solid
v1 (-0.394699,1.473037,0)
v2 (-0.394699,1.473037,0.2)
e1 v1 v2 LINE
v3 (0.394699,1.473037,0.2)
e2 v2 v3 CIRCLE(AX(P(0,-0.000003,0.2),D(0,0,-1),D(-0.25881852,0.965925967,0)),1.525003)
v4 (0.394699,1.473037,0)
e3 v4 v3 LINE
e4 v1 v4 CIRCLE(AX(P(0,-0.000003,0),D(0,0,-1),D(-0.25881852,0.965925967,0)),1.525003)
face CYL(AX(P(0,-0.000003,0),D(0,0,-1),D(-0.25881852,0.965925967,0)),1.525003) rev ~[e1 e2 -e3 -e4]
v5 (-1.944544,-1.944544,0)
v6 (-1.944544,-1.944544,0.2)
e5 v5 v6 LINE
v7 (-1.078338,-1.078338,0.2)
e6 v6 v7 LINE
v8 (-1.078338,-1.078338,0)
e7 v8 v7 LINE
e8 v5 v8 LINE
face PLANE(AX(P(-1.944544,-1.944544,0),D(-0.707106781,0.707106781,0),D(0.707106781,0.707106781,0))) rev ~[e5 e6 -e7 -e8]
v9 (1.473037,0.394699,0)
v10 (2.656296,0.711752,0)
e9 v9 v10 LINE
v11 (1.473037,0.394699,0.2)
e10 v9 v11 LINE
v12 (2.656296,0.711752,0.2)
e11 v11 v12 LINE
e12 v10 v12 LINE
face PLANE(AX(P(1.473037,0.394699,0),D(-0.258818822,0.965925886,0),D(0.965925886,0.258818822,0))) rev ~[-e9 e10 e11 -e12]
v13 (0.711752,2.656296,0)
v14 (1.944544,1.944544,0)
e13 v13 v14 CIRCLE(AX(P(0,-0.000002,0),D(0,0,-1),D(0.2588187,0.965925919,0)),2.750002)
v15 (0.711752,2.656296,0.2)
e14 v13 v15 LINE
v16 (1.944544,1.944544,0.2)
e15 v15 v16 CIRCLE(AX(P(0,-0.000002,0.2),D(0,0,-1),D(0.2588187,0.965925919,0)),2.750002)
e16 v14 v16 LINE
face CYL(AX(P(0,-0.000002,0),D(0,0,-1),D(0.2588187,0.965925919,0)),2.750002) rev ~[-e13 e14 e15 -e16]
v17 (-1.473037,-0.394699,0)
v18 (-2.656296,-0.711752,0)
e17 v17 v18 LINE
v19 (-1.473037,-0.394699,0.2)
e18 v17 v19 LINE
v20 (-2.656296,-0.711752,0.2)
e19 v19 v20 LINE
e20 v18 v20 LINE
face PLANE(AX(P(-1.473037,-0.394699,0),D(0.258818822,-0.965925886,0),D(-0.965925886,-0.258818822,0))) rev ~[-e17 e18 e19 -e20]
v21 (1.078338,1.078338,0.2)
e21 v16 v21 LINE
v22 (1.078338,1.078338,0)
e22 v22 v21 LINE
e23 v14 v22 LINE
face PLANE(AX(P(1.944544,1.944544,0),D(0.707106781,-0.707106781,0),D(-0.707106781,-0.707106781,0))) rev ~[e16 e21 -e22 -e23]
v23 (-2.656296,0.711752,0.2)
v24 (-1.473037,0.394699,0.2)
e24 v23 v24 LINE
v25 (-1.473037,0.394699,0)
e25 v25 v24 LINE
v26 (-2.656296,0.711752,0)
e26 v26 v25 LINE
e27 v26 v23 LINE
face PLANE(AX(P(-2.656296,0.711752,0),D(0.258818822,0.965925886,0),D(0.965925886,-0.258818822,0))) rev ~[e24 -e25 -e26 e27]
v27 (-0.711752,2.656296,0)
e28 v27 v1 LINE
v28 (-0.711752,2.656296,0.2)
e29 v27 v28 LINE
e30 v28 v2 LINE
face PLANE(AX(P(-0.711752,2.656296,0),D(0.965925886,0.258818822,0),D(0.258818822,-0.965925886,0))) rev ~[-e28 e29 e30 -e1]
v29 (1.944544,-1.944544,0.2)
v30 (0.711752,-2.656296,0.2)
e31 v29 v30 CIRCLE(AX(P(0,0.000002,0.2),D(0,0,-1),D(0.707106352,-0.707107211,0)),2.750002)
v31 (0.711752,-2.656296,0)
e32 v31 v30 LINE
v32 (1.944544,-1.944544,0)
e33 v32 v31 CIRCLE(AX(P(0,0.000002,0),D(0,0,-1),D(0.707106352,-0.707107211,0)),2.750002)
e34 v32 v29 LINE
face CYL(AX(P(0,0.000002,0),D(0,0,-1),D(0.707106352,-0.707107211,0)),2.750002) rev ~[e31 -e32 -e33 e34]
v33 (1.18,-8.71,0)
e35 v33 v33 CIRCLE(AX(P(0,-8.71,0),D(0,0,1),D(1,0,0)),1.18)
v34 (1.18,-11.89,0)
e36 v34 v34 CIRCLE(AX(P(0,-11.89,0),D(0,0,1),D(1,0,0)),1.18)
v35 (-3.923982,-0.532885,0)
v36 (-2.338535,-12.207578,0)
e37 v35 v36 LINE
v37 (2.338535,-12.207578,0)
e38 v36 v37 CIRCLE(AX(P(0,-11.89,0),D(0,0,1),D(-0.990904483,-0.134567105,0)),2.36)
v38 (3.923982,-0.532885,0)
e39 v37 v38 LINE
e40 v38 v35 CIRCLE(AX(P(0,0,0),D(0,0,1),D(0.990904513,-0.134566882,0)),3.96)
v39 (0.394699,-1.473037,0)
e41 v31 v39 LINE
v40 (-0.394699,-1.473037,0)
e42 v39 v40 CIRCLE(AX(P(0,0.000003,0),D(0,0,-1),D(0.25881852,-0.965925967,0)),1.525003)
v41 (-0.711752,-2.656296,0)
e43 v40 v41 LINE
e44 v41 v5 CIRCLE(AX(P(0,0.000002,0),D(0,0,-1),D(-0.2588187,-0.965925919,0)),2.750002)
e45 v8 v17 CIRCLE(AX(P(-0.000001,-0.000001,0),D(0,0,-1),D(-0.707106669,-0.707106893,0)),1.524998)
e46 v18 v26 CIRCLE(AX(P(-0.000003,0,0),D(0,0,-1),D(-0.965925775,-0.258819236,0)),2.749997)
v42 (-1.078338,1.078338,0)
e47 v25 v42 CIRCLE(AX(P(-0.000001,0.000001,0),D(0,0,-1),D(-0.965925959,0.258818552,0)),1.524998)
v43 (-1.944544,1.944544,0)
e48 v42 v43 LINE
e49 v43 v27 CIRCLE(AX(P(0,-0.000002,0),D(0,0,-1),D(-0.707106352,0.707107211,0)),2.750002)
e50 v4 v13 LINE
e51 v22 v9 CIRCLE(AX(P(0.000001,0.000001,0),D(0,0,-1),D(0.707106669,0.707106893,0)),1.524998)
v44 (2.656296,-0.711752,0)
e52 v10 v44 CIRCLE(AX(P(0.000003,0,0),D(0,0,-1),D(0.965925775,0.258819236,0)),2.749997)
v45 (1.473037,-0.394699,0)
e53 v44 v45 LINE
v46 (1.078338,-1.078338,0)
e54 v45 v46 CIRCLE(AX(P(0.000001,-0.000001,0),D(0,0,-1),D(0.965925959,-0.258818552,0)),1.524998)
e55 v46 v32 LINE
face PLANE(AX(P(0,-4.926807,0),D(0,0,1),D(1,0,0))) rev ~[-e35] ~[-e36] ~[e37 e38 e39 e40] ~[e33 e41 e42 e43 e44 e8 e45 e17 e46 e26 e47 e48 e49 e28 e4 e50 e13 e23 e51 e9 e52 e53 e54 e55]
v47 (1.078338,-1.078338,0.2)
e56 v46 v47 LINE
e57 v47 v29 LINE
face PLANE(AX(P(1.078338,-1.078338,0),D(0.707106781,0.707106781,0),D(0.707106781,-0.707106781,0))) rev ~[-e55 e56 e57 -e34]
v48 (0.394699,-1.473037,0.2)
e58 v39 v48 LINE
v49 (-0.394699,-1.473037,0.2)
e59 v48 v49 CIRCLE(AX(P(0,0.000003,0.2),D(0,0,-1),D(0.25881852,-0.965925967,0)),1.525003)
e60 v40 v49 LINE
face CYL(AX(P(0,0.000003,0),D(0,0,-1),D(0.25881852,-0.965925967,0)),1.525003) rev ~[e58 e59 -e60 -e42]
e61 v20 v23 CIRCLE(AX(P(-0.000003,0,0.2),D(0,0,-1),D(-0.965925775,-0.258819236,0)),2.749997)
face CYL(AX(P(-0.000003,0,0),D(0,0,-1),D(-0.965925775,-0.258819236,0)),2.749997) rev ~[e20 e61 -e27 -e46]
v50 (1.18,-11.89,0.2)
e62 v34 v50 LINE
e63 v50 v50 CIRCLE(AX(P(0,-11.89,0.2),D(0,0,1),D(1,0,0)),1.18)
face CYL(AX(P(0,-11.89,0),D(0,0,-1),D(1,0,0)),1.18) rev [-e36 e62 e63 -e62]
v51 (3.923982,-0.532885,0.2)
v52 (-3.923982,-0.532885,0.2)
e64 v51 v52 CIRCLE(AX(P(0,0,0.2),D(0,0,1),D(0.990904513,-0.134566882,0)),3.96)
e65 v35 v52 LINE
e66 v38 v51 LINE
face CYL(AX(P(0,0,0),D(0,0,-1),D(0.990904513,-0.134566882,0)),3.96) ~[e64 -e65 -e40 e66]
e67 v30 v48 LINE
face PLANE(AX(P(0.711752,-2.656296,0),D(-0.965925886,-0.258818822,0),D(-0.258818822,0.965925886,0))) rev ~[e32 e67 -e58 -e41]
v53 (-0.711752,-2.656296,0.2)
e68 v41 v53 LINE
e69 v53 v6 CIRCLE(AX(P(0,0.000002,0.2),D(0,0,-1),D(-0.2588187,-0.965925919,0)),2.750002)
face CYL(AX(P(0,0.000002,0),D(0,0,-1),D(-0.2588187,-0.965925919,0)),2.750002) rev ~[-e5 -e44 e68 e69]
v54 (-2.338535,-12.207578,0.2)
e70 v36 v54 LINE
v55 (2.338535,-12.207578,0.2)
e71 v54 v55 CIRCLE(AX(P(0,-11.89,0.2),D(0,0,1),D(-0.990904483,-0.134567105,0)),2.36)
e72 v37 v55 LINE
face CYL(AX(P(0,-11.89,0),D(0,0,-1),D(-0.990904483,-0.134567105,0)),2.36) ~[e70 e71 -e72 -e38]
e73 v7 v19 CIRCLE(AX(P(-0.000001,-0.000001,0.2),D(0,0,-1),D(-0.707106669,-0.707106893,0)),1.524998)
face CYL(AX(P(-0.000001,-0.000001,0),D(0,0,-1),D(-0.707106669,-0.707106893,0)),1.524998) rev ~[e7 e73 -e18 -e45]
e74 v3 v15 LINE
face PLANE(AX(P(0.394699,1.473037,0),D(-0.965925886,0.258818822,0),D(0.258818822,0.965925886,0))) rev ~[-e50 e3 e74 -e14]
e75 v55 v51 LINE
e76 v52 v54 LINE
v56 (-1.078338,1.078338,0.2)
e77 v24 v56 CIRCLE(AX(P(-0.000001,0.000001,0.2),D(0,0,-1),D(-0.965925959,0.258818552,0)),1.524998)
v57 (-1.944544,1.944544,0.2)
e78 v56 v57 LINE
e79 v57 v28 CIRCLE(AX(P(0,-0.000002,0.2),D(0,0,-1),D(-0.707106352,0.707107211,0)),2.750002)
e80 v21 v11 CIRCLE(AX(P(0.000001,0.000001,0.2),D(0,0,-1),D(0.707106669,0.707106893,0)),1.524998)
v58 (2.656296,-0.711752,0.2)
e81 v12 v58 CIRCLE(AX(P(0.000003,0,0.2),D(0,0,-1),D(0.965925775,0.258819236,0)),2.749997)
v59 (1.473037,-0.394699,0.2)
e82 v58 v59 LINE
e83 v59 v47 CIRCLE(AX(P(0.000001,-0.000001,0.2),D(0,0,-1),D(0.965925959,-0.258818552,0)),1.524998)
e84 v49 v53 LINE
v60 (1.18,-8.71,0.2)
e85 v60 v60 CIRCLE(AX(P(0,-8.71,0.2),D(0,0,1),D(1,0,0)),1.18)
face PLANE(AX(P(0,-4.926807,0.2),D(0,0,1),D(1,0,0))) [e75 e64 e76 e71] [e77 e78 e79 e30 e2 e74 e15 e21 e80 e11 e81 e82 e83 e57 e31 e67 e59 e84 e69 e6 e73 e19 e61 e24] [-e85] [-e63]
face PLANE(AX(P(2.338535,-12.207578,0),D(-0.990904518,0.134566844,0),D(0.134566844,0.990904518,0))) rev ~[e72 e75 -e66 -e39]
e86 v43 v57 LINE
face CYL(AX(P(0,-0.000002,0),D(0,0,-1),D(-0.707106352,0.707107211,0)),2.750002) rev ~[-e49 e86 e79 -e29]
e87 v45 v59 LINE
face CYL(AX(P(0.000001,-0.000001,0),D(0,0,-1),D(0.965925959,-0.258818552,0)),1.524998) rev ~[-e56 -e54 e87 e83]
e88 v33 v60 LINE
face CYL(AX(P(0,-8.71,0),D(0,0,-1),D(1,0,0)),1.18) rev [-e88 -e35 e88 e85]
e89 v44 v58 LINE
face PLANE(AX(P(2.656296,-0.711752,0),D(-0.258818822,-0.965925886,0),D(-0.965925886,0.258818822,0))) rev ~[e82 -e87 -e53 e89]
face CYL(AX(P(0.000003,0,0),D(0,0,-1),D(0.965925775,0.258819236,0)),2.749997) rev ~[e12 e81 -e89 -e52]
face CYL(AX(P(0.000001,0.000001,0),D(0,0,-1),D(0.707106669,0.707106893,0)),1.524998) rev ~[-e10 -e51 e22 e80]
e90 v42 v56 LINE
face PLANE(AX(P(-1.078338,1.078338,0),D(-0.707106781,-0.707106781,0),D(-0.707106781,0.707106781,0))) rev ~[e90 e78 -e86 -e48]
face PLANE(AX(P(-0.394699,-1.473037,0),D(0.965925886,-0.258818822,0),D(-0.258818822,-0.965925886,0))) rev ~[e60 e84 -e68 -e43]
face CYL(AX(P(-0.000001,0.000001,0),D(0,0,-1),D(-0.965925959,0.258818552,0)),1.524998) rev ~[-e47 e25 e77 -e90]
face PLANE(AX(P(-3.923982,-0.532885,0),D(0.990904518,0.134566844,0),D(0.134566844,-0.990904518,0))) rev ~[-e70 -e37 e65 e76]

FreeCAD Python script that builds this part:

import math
import FreeCAD as App
import Part
import Sketcher
from FreeCAD import Vector
Q = App.Units.Quantity

doc = App.newDocument("Part")
body = doc.addObject("PartDesign::Body", "Body")

# Sketch on XY plane
sketch1 = body.newObject("Sketcher::SketchObject", "Sketch")
sketch1.AttachmentSupport = (doc.getObject("XY_Plane"), [""])
sketch1.MapMode = "FlatFace"
sketch1.addGeometry([
    Part.LineSegment(Vector(2.3, -12.2, 0), Vector(3.9, -0.5, 0)),  # 0
    Part.ArcOfCircle(Part.Circle(Vector(0, 0, 0), Vector(0, 0, 1), 4), math.radians(-8), math.radians(188)),  # 1
    Part.LineSegment(Vector(-3.9, -0.5, 0), Vector(-2.3, -12.2, 0)),  # 2
    Part.ArcOfCircle(Part.Circle(Vector(0, -11.9, 0), Vector(0, 0, 1), 2.4), math.radians(-172), math.radians(-8)),  # 3
    Part.Circle(Vector(0, -11.9, 0), Vector(0, 0, 1), 1.2),  # 4
    Part.Circle(Vector(0, -8.7, 0), Vector(0, 0, 1), 1.2),  # 5
    Part.LineSegment(Vector(-1.9, -1.9, 0), Vector(-1.1, -1.1, 0)),  # 6
    Part.ArcOfCircle(Part.Circle(Vector(0, 0, 0), Vector(0, 0, 1), 1.5), math.radians(-165), math.radians(-135)),  # 7
    Part.LineSegment(Vector(-1.5, -0.4, 0), Vector(-2.7, -0.7, 0)),  # 8
    Part.ArcOfCircle(Part.Circle(Vector(0, 0, 0), Vector(0, 0, 1), 2.7), math.radians(165), math.radians(195)),  # 9
    Part.LineSegment(Vector(-2.7, 0.7, 0), Vector(-1.5, 0.4, 0)),  # 10
    Part.ArcOfCircle(Part.Circle(Vector(0, 0, 0), Vector(0, 0, 1), 1.5), math.radians(135), math.radians(165)),  # 11
    Part.LineSegment(Vector(-1.1, 1.1, 0), Vector(-1.9, 1.9, 0)),  # 12
    Part.ArcOfCircle(Part.Circle(Vector(0, 0, 0), Vector(0, 0, 1), 2.8), math.radians(105), math.radians(135)),  # 13
    Part.LineSegment(Vector(-0.7, 2.7, 0), Vector(-0.4, 1.5, 0)),  # 14
    Part.ArcOfCircle(Part.Circle(Vector(0, 0, 0), Vector(0, 0, 1), 1.5), math.radians(75), math.radians(105)),  # 15
    Part.LineSegment(Vector(0.4, 1.5, 0), Vector(0.7, 2.7, 0)),  # 16
    Part.ArcOfCircle(Part.Circle(Vector(0, 0, 0), Vector(0, 0, 1), 2.8), math.radians(45), math.radians(75)),  # 17
    Part.LineSegment(Vector(1.9, 1.9, 0), Vector(1.1, 1.1, 0)),  # 18
    Part.ArcOfCircle(Part.Circle(Vector(0, 0, 0), Vector(0, 0, 1), 1.5), math.radians(15), math.radians(45)),  # 19
    Part.LineSegment(Vector(1.5, 0.4, 0), Vector(2.7, 0.7, 0)),  # 20
    Part.ArcOfCircle(Part.Circle(Vector(0, 0, 0), Vector(0, 0, 1), 2.7), math.radians(-15), math.radians(15)),  # 21
    Part.LineSegment(Vector(2.7, -0.7, 0), Vector(1.5, -0.4, 0)),  # 22
    Part.ArcOfCircle(Part.Circle(Vector(0, 0, 0), Vector(0, 0, 1), 1.5), math.radians(-45), math.radians(-15)),  # 23
    Part.LineSegment(Vector(1.1, -1.1, 0), Vector(1.9, -1.9, 0)),  # 24
    Part.ArcOfCircle(Part.Circle(Vector(0, 0, 0), Vector(0, 0, 1), 2.8), math.radians(-75), math.radians(-45)),  # 25
    Part.LineSegment(Vector(0.7, -2.7, 0), Vector(0.4, -1.5, 0)),  # 26
    Part.ArcOfCircle(Part.Circle(Vector(0, 0, 0), Vector(0, 0, 1), 1.5), math.radians(-105), math.radians(-75)),  # 27
    Part.LineSegment(Vector(-0.4, -1.5, 0), Vector(-0.7, -2.7, 0)),  # 28
    Part.ArcOfCircle(Part.Circle(Vector(0, 0, 0), Vector(0, 0, 1), 2.8), math.radians(-135), math.radians(-105)),  # 29
], False)
sketch1.addConstraint([
    Sketcher.Constraint("Tangent", 0, 2, 1, 1),
    Sketcher.Constraint("Tangent", 1, 2, 2, 1),
    Sketcher.Constraint("Tangent", 2, 2, 3, 1),
    Sketcher.Constraint("Tangent", 3, 2, 0, 1),
    Sketcher.Constraint("Coincident", 6, 2, 7, 2),
    Sketcher.Constraint("Coincident", 7, 1, 8, 1),
    Sketcher.Constraint("Coincident", 8, 2, 9, 2),
    Sketcher.Constraint("Coincident", 9, 1, 10, 1),
    Sketcher.Constraint("Coincident", 10, 2, 11, 2),
    Sketcher.Constraint("Coincident", 11, 1, 12, 1),
    Sketcher.Constraint("Coincident", 12, 2, 13, 2),
    Sketcher.Constraint("Coincident", 13, 1, 14, 1),
    Sketcher.Constraint("Coincident", 14, 2, 15, 2),
    Sketcher.Constraint("Coincident", 15, 1, 16, 1),
    Sketcher.Constraint("Coincident", 16, 2, 17, 2),
    Sketcher.Constraint("Coincident", 17, 1, 18, 1),
    Sketcher.Constraint("Coincident", 18, 2, 19, 2),
    Sketcher.Constraint("Coincident", 19, 1, 20, 1),
    Sketcher.Constraint("Coincident", 20, 2, 21, 2),
    Sketcher.Constraint("Coincident", 21, 1, 22, 1),
    Sketcher.Constraint("Coincident", 22, 2, 23, 2),
    Sketcher.Constraint("Coincident", 23, 1, 24, 1),
    Sketcher.Constraint("Coincident", 24, 2, 25, 2),
    Sketcher.Constraint("Coincident", 25, 1, 26, 1),
    Sketcher.Constraint("Coincident", 26, 2, 27, 2),
    Sketcher.Constraint("Coincident", 27, 1, 28, 1),
    Sketcher.Constraint("Coincident", 28, 2, 29, 2),
    Sketcher.Constraint("Coincident", 29, 1, 6, 1),
    Sketcher.Constraint("Coincident", 1, 3, -1, 1),
    Sketcher.Constraint("Coincident", 7, 3, -1, 1),
    Sketcher.Constraint("Coincident", 9, 3, -1, 1),
    Sketcher.Constraint("Coincident", 11, 3, -1, 1),
    Sketcher.Constraint("Coincident", 13, 3, -1, 1),
    Sketcher.Constraint("Coincident", 15, 3, -1, 1),
    Sketcher.Constraint("Coincident", 17, 3, -1, 1),
    Sketcher.Constraint("Coincident", 19, 3, -1, 1),
    Sketcher.Constraint("Coincident", 21, 3, -1, 1),
    Sketcher.Constraint("Coincident", 23, 3, -1, 1),
    Sketcher.Constraint("Coincident", 25, 3, -1, 1),
    Sketcher.Constraint("Coincident", 27, 3, -1, 1),
    Sketcher.Constraint("Coincident", 29, 3, -1, 1),
    Sketcher.Constraint("Coincident", 4, 3, 3, 3),
    Sketcher.Constraint("Equal", 4, 5),
    Sketcher.Constraint("Equal", 7, 11),
    Sketcher.Constraint("Equal", 13, 17),
    Sketcher.Constraint("Equal", 11, 19),
    Sketcher.Constraint("Equal", 9, 21),
    Sketcher.Constraint("Equal", 19, 23),
    Sketcher.Constraint("Equal", 17, 25),
    Sketcher.Constraint("Equal", 15, 27),
    Sketcher.Constraint("Equal", 25, 29),
    Sketcher.Constraint("PointOnObject", 3, 3, -2),
    Sketcher.Constraint("PointOnObject", 5, 3, -2),
    Sketcher.Constraint("Perpendicular", 6, 12),
    Sketcher.Constraint("Perpendicular", 8, 14),
    Sketcher.Constraint("Perpendicular", 10, 16),
    Sketcher.Constraint("Perpendicular", 12, 18),
    Sketcher.Constraint("Perpendicular", 14, 20),
    Sketcher.Constraint("Perpendicular", 16, 22),
    Sketcher.Constraint("Perpendicular", 18, 24),
    Sketcher.Constraint("Perpendicular", 20, 26),
    Sketcher.Constraint("Perpendicular", 22, 28),
    Sketcher.Constraint("Horizontal", 14, 2, 15, 1),
    Sketcher.Constraint("Horizontal", 13, 1, 16, 2),
    Sketcher.Constraint("Horizontal", 12, 2, 17, 1),
    Sketcher.Constraint("Horizontal", 11, 1, 18, 2),
    Sketcher.Constraint("Horizontal", 10, 2, 19, 1),
    Sketcher.Constraint("Horizontal", 8, 2, 21, 1),
    Sketcher.Constraint("Horizontal", 6, 2, 23, 1),
    Sketcher.Constraint("Horizontal", 26, 2, 27, 1),
    Sketcher.Constraint("Vertical", 8, 2, 9, 1),
    Sketcher.Constraint("Vertical", 6, 2, 11, 1),
    Sketcher.Constraint("Vertical", 16, 2, 25, 1),
    Sketcher.Constraint("Equal", 6, 8),
    Sketcher.Constraint("Equal", 12, 14),
    Sketcher.Constraint("Diameter", 4, Q("2.36 mm")),
    Sketcher.Constraint("Angle", 8, Q("-165.000013 deg")),
    Sketcher.Constraint("Radius", 1, Q("3.96 mm")),
    Sketcher.Constraint("Radius", 3, Q("2.36 mm")),
    Sketcher.Constraint("Radius", 7, Q("1.524998 mm")),
    Sketcher.Constraint("DistanceY", 3, 3, -1, 1, Q("11.89 mm")),
    Sketcher.Constraint("DistanceY", 5, 3, -1, 1, Q("8.71 mm")),
    Sketcher.Constraint("Distance", 6, Q("1.225 mm")),
    Sketcher.Constraint("DistanceY", 7, 1, -1, 1, Q("0.394699 mm")),
    Sketcher.Constraint("DistanceX", 14, 2, -1, 1, Q("0.394699 mm")),
    Sketcher.Constraint("DistanceX", 7, 1, 6, 2, Q("0.394699 mm")),
])
pad1 = body.newObject("PartDesign::Pad", "Pad")
pad1.Profile = sketch1
pad1.Length = 0.2

doc.recompute()
